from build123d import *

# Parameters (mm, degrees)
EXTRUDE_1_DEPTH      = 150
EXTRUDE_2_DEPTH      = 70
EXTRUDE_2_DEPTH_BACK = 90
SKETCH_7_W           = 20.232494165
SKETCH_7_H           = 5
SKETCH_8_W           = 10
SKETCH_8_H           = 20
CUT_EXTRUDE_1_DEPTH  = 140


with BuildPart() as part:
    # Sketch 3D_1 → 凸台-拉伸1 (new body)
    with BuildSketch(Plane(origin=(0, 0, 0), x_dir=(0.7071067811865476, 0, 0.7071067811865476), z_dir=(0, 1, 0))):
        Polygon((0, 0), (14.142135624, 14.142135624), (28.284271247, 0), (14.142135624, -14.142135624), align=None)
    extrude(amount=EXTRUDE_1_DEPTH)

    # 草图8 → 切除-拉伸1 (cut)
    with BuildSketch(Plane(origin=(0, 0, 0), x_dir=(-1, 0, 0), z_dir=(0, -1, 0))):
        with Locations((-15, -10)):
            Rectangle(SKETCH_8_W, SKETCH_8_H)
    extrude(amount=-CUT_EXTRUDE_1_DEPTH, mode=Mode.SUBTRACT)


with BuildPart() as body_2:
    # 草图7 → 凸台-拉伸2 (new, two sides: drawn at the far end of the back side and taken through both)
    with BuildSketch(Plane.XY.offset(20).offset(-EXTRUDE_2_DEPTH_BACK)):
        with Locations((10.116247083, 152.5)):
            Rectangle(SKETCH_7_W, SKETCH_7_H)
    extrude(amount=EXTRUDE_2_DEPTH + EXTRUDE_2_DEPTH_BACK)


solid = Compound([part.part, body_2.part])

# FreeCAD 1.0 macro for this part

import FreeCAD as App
import Part
import Sketcher
from FreeCAD import Vector

doc = App.newDocument("Part")
body = doc.addObject("PartDesign::Body", "Body")

# Sketch on XZ plane
sketch1 = body.newObject("Sketcher::SketchObject", "Sketch")
sketch1.AttachmentSupport = (doc.getObject("XZ_Plane"), [""])
sketch1.MapMode = "FlatFace"
sketch1.addGeometry([
    Part.LineSegment(Vector(20, 0, 0), Vector(0, 0, 0)),
    Part.LineSegment(Vector(0, 0, 0), Vector(0, 20, 0)),
    Part.LineSegment(Vector(0, 20, 0), Vector(20, 20, 0)),
    Part.LineSegment(Vector(20, 20, 0), Vector(20, 0, 0)),
], False)
sketch1.addConstraint([
    Sketcher.Constraint("Coincident", 0, 2, 1, 1),
    Sketcher.Constraint("Coincident", 1, 2, 2, 1),
    Sketcher.Constraint("Coincident", 2, 2, 3, 1),
    Sketcher.Constraint("Coincident", 3, 2, 0, 1),
    Sketcher.Constraint("Horizontal", 0),
    Sketcher.Constraint("Vertical", 1),
    Sketcher.Constraint("Horizontal", 2),
    Sketcher.Constraint("Vertical", 3),
    Sketcher.Constraint("Coincident", 0, 2, -1, 1),
    Sketcher.Constraint("Equal", 2, 1),
    Sketcher.Constraint("DistanceX", 0, 2, 0, 1, 20.0),
])
pad1 = body.newObject("PartDesign::Pad", "Pad")
pad1.Profile = sketch1
pad1.Length = 150
pad1.Reversed = True

# Sketch on XZ plane
sketch2 = body.newObject("Sketcher::SketchObject", "Sketch001")
sketch2.AttachmentSupport = (doc.getObject("XZ_Plane"), [""])
sketch2.MapMode = "FlatFace"
sketch2.addGeometry([
    Part.LineSegment(Vector(20, 0, 0), Vector(20, 20, 0)),
    Part.LineSegment(Vector(20, 20, 0), Vector(10, 20, 0)),
    Part.LineSegment(Vector(10, 20, 0), Vector(10, 0, 0)),
    Part.LineSegment(Vector(10, 0, 0), Vector(20, 0, 0)),
], False)
sketch2.addConstraint([
    Sketcher.Constraint("Coincident", 0, 2, 1, 1),
    Sketcher.Constraint("Coincident", 1, 2, 2, 1),
    Sketcher.Constraint("Coincident", 2, 2, 3, 1),
    Sketcher.Constraint("Coincident", 3, 2, 0, 1),
    Sketcher.Constraint("Vertical", 0),
    Sketcher.Constraint("Horizontal", 1),
    Sketcher.Constraint("Vertical", 2),
    Sketcher.Constraint("Horizontal", 3),
    Sketcher.Constraint("PointOnObject", 2, 2, -1),
    Sketcher.Constraint("DistanceX", 1, 2, 1, 1, 10.0),
    Sketcher.Constraint("DistanceY", 0, 1, 0, 2, 20.0),
    Sketcher.Constraint("DistanceX", -1, 1, 0, 2, 20.0),
])
pocket1 = body.newObject("PartDesign::Pocket", "Pocket")
pocket1.Profile = sketch2
pocket1.Length = 140
body2 = doc.addObject("PartDesign::Body", "Body001")

# Sketch on XY plane
sketch3 = body2.newObject("Sketcher::SketchObject", "Sketch002")
sketch3.AttachmentSupport = (doc.getObject("XY_Plane001"), [""])
sketch3.MapMode = "FlatFace"
sketch3.AttachmentOffset = App.Placement(Vector(0, 0, 20), App.Rotation())
sketch3.addGeometry([
    Part.LineSegment(Vector(0, 155, 0), Vector(0, 150, 0)),
    Part.LineSegment(Vector(0, 150, 0), Vector(20.232494, 150, 0)),
    Part.LineSegment(Vector(20.232494, 150, 0), Vector(20.232494, 155, 0)),
    Part.LineSegment(Vector(20.232494, 155, 0), Vector(0, 155, 0)),
], False)
sketch3.addConstraint([
    Sketcher.Constraint("Coincident", 0, 2, 1, 1),
    Sketcher.Constraint("Coincident", 1, 2, 2, 1),
    Sketcher.Constraint("Coincident", 2, 2, 3, 1),
    Sketcher.Constraint("Coincident", 3, 2, 0, 1),
    Sketcher.Constraint("Vertical", 0),
    Sketcher.Constraint("Horizontal", 1),
    Sketcher.Constraint("Vertical", 2),
    Sketcher.Constraint("Horizontal", 3),
    Sketcher.Constraint("PointOnObject", 0, 2, -2),
    Sketcher.Constraint("DistanceY", 0, 2, 0, 1, 5.0),
    Sketcher.Constraint("DistanceY", -1, 1, 0, 2, 150.0),
    Sketcher.Constraint("DistanceX", 1, 1, 1, 2, 20.232494),
])
pad2 = body2.newObject("PartDesign::Pad", "Pad001")
pad2.Profile = sketch3
pad2.Type = "TwoLengths"
pad2.Length = 70
pad2.Length2 = 90

doc.recompute()
